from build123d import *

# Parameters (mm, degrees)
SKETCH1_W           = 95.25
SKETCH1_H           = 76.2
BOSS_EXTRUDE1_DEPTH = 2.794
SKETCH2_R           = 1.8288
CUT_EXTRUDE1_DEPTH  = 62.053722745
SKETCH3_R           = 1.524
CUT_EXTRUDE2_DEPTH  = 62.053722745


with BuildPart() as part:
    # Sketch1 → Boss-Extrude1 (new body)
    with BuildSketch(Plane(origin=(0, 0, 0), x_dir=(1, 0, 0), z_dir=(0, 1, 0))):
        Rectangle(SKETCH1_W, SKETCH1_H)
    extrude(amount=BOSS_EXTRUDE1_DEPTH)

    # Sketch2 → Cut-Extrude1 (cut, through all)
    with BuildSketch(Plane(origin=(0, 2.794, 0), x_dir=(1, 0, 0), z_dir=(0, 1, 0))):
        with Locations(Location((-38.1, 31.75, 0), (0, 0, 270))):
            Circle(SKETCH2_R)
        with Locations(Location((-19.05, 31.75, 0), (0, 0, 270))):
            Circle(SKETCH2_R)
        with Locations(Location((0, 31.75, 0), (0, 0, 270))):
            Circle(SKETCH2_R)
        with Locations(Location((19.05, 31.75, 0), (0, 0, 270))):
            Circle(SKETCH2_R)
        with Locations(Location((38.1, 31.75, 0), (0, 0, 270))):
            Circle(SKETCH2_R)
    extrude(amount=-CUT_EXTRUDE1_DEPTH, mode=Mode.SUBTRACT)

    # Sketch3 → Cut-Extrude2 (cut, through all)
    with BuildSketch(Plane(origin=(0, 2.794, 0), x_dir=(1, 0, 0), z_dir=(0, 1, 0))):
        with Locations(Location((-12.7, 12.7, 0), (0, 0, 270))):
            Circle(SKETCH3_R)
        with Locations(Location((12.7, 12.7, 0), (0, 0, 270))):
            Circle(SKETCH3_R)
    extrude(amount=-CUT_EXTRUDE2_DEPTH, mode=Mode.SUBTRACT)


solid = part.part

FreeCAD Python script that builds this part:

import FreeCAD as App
import Part
import Sketcher
from FreeCAD import Vector
Q = App.Units.Quantity

doc = App.newDocument("Part")
params = doc.addObject("Spreadsheet::Sheet", "Params")
for row, (alias, value) in enumerate([
    ("sketch1_height", "3 in"),
    ("sketch1_width", "3.75 in"),
    ("pad1_length", "0.11 in"),
    ("sketch2_diameter", "0.144 in"),
    ("sketch3_diameter", "0.12 in"),
], start=1):
    params.set(f"A{row}", alias)
    params.set(f"B{row}", "=" + value)
    params.setAlias(f"B{row}", alias)

body = doc.addObject("PartDesign::Body", "Body")

# Sketch on XZ plane
sketch1 = doc.addObject("Sketcher::SketchObject", "Sketch")
body.addObject(sketch1)
sketch1.AttachmentSupport = (doc.XZ_Plane, [""])
sketch1.MapMode = "FlatFace"
sketch1.addGeometry(Part.LineSegment(Vector(-48, -38, 0), Vector(-48, 38, 0)), False)
sketch1.addGeometry(Part.LineSegment(Vector(-48, 38, 0), Vector(48, 38, 0)), False)
sketch1.addGeometry(Part.LineSegment(Vector(48, 38, 0), Vector(48, -38, 0)), False)
sketch1.addGeometry(Part.LineSegment(Vector(48, -38, 0), Vector(-48, -38, 0)), False)
sketch1.addConstraint(Sketcher.Constraint("Coincident", 0, 2, 1, 1))
sketch1.addConstraint(Sketcher.Constraint("Coincident", 1, 2, 2, 1))
sketch1.addConstraint(Sketcher.Constraint("Coincident", 2, 2, 3, 1))
sketch1.addConstraint(Sketcher.Constraint("Coincident", 3, 2, 0, 1))
sketch1.addConstraint(Sketcher.Constraint("Vertical", 0))
sketch1.addConstraint(Sketcher.Constraint("Horizontal", 1))
sketch1.addConstraint(Sketcher.Constraint("Vertical", 2))
sketch1.addConstraint(Sketcher.Constraint("Horizontal", 3))
sketch1.addConstraint(Sketcher.Constraint("Symmetric", 0, 2, 2, 2, -1, 1))
sketch1.addConstraint(Sketcher.Constraint("DistanceY", 0, 1, 0, 2, Q("3 in")))
sketch1.addConstraint(Sketcher.Constraint("DistanceX", 1, 1, 1, 2, Q("3.75 in")))
sketch1.setExpression("Constraints[9]", "Params.sketch1_height")
sketch1.setExpression("Constraints[10]", "Params.sketch1_width")
pad1 = doc.addObject("PartDesign::Pad", "Pad")
body.addObject(pad1)
pad1.Profile = sketch1
pad1.setExpression("Length", "Params.pad1_length")
pad1.Reversed = True

# Sketch on XZ plane
sketch2 = doc.addObject("Sketcher::SketchObject", "Sketch001")
body.addObject(sketch2)
sketch2.AttachmentSupport = (doc.XZ_Plane, [""])
sketch2.MapMode = "FlatFace"
sketch2.AttachmentOffset = App.Placement(Vector(0, 0, -0.11 * 25.4), App.Rotation())
sketch2.addGeometry(Part.Circle(Vector(-38.1, -31.8, 0), Vector(0, 0, 1), 1.8), False)
sketch2.addGeometry(Part.Circle(Vector(-19.1, -31.8, 0), Vector(0, 0, 1), 1.8), False)
sketch2.addGeometry(Part.Circle(Vector(0, -31.8, 0), Vector(0, 0, 1), 1.8), False)
sketch2.addGeometry(Part.Circle(Vector(19.1, -31.8, 0), Vector(0, 0, 1), 1.8), False)
sketch2.addGeometry(Part.Circle(Vector(38.1, -31.8, 0), Vector(0, 0, 1), 1.8), False)
sketch2.addConstraint(Sketcher.Constraint("Equal", 0, 1))
sketch2.addConstraint(Sketcher.Constraint("Equal", 1, 2))
sketch2.addConstraint(Sketcher.Constraint("Equal", 2, 3))
sketch2.addConstraint(Sketcher.Constraint("Equal", 3, 4))
sketch2.addConstraint(Sketcher.Constraint("Symmetric", 1, 3, 3, 3, -2))
sketch2.addConstraint(Sketcher.Constraint("Symmetric", 0, 3, 4, 3, -2))
sketch2.addConstraint(Sketcher.Constraint("PointOnObject", 2, 3, -2))
sketch2.addConstraint(Sketcher.Constraint("Horizontal", 0, 3, 1, 3))
sketch2.addConstraint(Sketcher.Constraint("Horizontal", 1, 3, 2, 3))
sketch2.addConstraint(Sketcher.Constraint("Diameter", 0, Q("0.144 in")))
sketch2.addConstraint(Sketcher.Constraint("DistanceX", 0, 3, 4, 3, Q("3 in")))
sketch2.addConstraint(Sketcher.Constraint("DistanceX", 1, 3, 3, 3, Q("1.5 in")))
sketch2.addConstraint(Sketcher.Constraint("DistanceY", 0, 3, -1, 1, Q("1.25 in")))
sketch2.setExpression("Constraints[9]", "Params.sketch2_diameter")
pocket1 = doc.addObject("PartDesign::Pocket", "Pocket")
body.addObject(pocket1)
pocket1.Profile = sketch2
pocket1.Type = "ThroughAll"
pocket1.Reversed = True

# Sketch on XZ plane
sketch3 = doc.addObject("Sketcher::SketchObject", "Sketch002")
body.addObject(sketch3)
sketch3.AttachmentSupport = (doc.XZ_Plane, [""])
sketch3.MapMode = "FlatFace"
sketch3.AttachmentOffset = App.Placement(Vector(0, 0, -0.11 * 25.4), App.Rotation())
sketch3.addGeometry(Part.Circle(Vector(-12.7, -12.7, 0), Vector(0, 0, 1), 1.5), False)
sketch3.addGeometry(Part.Circle(Vector(12.7, -12.7, 0), Vector(0, 0, 1), 1.5), False)
sketch3.addConstraint(Sketcher.Constraint("Equal", 0, 1))
sketch3.addConstraint(Sketcher.Constraint("Symmetric", 0, 3, 1, 3, -2))
sketch3.addConstraint(Sketcher.Constraint("Diameter", 0, Q("0.12 in")))
sketch3.addConstraint(Sketcher.Constraint("DistanceX", 0, 3, 1, 3, Q("1 in")))
sketch3.addConstraint(Sketcher.Constraint("DistanceY", 0, 3, -1, 1, Q("0.5 in")))
sketch3.setExpression("Constraints[2]", "Params.sketch3_diameter")
pocket2 = doc.addObject("PartDesign::Pocket", "Pocket001")
body.addObject(pocket2)
pocket2.Profile = sketch3
pocket2.Type = "ThroughAll"
pocket2.Reversed = True

doc.recompute()
